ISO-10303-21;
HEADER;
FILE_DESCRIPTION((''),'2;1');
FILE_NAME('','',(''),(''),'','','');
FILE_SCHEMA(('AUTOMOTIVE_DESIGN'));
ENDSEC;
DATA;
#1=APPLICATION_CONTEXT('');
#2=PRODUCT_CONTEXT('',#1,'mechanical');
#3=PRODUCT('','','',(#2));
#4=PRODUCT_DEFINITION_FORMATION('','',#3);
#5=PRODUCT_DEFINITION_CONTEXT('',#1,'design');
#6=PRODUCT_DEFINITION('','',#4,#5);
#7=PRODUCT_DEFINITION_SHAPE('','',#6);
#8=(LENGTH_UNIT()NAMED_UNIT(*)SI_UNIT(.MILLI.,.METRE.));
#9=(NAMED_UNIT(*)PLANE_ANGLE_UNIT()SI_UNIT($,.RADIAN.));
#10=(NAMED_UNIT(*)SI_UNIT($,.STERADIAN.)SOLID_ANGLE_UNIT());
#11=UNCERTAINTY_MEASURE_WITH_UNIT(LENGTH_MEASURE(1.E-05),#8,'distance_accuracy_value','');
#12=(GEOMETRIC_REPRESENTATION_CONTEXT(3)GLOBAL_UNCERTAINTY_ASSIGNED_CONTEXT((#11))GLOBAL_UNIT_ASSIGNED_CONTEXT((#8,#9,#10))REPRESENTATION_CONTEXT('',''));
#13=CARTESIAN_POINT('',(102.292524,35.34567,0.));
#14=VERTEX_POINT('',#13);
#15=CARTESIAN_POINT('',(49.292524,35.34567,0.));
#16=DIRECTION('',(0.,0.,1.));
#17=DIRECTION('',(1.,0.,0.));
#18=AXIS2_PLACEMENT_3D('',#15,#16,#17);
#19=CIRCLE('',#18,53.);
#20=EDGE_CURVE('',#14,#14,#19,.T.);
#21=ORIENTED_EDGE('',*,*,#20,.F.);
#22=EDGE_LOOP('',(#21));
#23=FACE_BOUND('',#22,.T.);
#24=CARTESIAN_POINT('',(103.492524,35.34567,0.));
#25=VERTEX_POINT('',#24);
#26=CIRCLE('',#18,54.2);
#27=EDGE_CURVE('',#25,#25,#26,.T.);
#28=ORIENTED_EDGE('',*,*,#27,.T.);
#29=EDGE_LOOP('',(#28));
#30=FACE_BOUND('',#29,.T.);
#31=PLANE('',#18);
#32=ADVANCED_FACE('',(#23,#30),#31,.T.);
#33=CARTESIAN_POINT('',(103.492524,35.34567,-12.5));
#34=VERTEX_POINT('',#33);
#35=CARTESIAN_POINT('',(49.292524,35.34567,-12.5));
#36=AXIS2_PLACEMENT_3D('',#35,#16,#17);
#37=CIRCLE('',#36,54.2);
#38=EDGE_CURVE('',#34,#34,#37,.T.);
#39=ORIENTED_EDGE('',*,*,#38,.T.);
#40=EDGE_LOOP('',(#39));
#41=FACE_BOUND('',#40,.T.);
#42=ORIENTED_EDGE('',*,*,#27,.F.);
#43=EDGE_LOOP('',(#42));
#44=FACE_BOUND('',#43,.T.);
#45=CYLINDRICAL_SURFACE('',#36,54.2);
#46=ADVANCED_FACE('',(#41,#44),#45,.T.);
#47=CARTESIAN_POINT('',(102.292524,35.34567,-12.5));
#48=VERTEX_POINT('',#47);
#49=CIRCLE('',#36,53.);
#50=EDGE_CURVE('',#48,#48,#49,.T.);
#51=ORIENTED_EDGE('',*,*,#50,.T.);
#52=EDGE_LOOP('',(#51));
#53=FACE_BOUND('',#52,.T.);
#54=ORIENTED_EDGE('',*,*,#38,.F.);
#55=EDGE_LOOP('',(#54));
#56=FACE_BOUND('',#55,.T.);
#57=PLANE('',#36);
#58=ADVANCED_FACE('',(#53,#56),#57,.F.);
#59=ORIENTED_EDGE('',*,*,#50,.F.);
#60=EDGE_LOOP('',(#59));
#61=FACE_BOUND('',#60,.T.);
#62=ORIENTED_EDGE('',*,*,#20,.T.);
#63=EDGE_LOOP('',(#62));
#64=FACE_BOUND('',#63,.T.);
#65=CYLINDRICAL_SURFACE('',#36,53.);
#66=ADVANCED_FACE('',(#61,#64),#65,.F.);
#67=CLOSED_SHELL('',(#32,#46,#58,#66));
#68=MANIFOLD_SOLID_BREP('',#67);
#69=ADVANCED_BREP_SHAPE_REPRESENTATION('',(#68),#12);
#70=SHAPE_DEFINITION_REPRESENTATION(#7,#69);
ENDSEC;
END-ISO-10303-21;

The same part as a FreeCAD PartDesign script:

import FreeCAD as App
import Part
import Sketcher
Q = App.Units.Quantity

doc = App.newDocument("Part")
body = doc.addObject("PartDesign::Body", "Body")

# Sketch on XY plane
sketch1 = body.newObject("Sketcher::SketchObject", "Sketch")
sketch1.AttachmentSupport = (doc.getObject("XY_Plane"), [""])
sketch1.MapMode = "FlatFace"
sketch1.addGeometry([
    Part.Circle(App.Vector(49, 35, 0), App.Vector(0, 0, 1), 54),
    Part.Circle(App.Vector(49, 35, 0), App.Vector(0, 0, 1), 53),
], False)
sketch1.addConstraint([
    Sketcher.Constraint("Coincident", 1, 3, 0, 3),
    Sketcher.Constraint("Diameter", 1, Q("106 mm")),
    Sketcher.Constraint("Diameter", 0, Q("108.4 mm")),
    Sketcher.Constraint("DistanceY", -1, 1, 0, 3, Q("35.34567 mm")),
    Sketcher.Constraint("DistanceX", -1, 1, 0, 3, Q("49.292524 mm")),
])
pad1 = body.newObject("PartDesign::Pad", "Pad")
pad1.Profile = sketch1
pad1.Length = 12.5
pad1.Reversed = True

doc.recompute()
